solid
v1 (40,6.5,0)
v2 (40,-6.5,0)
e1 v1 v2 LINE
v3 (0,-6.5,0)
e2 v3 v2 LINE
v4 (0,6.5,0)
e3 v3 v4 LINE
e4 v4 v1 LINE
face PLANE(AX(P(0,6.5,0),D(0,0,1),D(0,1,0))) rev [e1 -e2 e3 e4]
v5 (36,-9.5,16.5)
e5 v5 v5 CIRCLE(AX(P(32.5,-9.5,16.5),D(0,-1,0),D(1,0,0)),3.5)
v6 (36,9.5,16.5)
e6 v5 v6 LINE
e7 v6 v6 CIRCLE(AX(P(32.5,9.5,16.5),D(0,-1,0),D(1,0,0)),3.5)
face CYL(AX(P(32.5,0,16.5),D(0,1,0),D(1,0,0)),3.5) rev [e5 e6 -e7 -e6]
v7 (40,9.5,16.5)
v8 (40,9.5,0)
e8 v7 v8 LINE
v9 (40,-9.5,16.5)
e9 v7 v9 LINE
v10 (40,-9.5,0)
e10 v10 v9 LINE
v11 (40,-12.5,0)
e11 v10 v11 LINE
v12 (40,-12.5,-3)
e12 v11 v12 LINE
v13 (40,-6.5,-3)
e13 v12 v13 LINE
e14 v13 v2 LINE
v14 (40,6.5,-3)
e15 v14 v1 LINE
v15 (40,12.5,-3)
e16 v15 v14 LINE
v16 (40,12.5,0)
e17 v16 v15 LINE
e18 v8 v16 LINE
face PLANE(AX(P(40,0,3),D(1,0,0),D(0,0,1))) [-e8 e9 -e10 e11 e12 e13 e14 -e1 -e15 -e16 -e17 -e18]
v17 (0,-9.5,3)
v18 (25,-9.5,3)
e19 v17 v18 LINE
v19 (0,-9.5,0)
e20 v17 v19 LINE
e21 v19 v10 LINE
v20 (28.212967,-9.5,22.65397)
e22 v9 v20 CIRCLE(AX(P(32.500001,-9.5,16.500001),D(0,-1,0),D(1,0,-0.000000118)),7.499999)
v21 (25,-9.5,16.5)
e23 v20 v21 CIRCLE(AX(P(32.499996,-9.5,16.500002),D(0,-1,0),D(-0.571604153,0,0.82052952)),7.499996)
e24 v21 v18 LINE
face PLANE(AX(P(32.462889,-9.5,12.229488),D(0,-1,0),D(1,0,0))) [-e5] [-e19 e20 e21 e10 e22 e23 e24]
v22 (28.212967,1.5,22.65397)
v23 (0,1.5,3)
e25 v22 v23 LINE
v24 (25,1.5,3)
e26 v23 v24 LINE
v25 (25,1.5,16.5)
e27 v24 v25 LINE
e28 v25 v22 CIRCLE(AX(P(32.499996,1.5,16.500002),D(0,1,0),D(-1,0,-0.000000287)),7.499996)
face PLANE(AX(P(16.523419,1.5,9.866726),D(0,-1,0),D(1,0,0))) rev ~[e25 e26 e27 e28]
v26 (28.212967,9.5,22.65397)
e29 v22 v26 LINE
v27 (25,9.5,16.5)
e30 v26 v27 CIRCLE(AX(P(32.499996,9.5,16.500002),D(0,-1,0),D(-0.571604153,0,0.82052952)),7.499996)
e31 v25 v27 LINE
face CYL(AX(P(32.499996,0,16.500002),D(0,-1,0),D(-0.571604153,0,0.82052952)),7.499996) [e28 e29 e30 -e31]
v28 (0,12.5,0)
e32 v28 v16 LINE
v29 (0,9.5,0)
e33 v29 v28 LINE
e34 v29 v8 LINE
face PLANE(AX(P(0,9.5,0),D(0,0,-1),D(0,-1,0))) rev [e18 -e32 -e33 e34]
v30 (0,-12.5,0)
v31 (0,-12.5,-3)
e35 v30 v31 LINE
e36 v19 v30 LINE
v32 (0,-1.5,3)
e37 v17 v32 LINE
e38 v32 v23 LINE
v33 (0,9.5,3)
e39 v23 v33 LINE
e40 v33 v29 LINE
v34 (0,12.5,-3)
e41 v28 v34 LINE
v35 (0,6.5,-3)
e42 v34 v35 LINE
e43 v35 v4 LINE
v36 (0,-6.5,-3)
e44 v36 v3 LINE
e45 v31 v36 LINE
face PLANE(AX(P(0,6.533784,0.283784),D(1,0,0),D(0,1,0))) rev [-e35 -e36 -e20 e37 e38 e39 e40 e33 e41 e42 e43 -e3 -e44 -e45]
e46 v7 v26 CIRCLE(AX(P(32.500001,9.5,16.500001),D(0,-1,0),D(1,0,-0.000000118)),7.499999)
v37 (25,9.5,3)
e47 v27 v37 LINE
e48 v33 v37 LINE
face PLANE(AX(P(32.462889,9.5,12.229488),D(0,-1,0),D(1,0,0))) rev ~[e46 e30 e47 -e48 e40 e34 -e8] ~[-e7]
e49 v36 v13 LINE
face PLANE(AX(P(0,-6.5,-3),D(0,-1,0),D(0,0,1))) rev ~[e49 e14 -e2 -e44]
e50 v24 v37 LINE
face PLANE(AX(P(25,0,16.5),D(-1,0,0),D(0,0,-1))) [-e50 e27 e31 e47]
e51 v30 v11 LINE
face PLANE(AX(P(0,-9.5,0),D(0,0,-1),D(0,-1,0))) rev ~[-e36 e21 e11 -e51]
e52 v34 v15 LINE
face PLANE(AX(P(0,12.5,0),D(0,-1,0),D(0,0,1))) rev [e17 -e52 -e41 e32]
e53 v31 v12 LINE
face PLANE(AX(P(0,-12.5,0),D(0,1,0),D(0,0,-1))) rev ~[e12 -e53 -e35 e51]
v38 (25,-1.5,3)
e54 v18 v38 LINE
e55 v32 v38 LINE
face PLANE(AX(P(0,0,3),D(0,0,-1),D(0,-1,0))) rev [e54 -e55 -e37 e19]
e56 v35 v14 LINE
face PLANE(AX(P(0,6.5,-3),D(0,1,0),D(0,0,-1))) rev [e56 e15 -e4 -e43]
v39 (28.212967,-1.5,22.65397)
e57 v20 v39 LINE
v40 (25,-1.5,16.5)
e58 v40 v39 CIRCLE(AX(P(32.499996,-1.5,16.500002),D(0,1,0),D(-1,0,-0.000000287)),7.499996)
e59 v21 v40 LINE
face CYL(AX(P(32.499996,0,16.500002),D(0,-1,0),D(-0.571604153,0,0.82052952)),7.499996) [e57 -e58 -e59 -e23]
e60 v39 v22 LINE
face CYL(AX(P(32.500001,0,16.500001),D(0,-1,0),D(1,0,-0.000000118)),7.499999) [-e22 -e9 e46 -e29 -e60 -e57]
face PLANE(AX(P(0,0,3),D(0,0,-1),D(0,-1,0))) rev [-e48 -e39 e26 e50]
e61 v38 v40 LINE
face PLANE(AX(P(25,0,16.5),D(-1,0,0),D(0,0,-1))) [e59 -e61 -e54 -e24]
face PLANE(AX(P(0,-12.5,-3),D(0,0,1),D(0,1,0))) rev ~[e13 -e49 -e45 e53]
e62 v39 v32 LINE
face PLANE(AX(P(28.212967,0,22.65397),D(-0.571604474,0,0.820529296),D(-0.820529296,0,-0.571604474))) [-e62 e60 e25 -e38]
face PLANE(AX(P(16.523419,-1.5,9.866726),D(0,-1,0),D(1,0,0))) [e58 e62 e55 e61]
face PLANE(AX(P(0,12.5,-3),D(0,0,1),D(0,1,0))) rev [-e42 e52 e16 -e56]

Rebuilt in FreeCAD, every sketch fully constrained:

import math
import FreeCAD as App
import Part
import Sketcher
from FreeCAD import Vector
Q = App.Units.Quantity


def add_polygon(sketch, points):
    """Adds a closed chain of lines whose ends are joined by coincident constraints."""
    first, n = sketch.GeometryCount, len(points)
    for a, b in zip(points, points[1:] + points[:1]):
        sketch.addGeometry(Part.LineSegment(App.Vector(*a, 0), App.Vector(*b, 0)), False)
    for i in range(n):
        sketch.addConstraint(Sketcher.Constraint("Coincident", first + i, 2, first + (i + 1) % n, 1))

doc = App.newDocument("Part")
params = doc.addObject("Spreadsheet::Sheet", "Params")
for row, (alias, value) in enumerate([
    ("sketch1_width", "3 mm"),
    ("sketch1_width2", "6 mm"),
    ("sketch1_width3", "6.5 mm"),
    ("pad1_length", "40 mm"),
    ("sketch2_diameter", "7 mm"),
    ("sketch2_radius", "7.499999 mm"),
    ("sketch2_height", "13.5 mm"),
    ("pad2_length", "19 mm"),
    ("sketch3_width", "25 mm"),
    ("sketch3_height", "13.5 mm"),
    ("pad3_length", "3 mm"),
], start=1):
    params.set(f"A{row}", alias)
    params.set(f"B{row}", "=" + value)
    params.setAlias(f"B{row}", alias)

body = doc.addObject("PartDesign::Body", "Body")

sketch1 = body.newObject("Sketcher::SketchObject", "Sketch")
sketch1.AttachmentSupport = (doc.getObject("YZ_Plane"), [""])
sketch1.MapMode = "FlatFace"
add_polygon(sketch1, [(-6.5, 0), (0, 0), (0, 3), (-9.5, 3), (-9.5, 0), (-12.5, 0), (-12.5, -3), (-6.5, -3)])
sketch1.addConstraint([
    Sketcher.Constraint("Horizontal", 0),
    Sketcher.Constraint("Vertical", 1),
    Sketcher.Constraint("Horizontal", 2),
    Sketcher.Constraint("Vertical", 3),
    Sketcher.Constraint("Horizontal", 4),
    Sketcher.Constraint("Vertical", 5),
    Sketcher.Constraint("Horizontal", 6),
    Sketcher.Constraint("Vertical", 7),
    Sketcher.Constraint("Coincident", 0, 2, -1, 1),
    Sketcher.Constraint("PointOnObject", 3, 2, -1),
    Sketcher.Constraint("Equal", 4, 1),
    Sketcher.Constraint("Equal", 3, 5),
    Sketcher.Constraint("DistanceX", 4, 2, 4, 1, Q("3 mm")),
    Sketcher.Constraint("DistanceX", 6, 1, 6, 2, Q("6 mm")),
    Sketcher.Constraint("DistanceX", 0, 1, 0, 2, Q("6.5 mm")),
])
sketch1.setExpression("Constraints[20]", "Params.sketch1_width")
sketch1.setExpression("Constraints[21]", "Params.sketch1_width2")
sketch1.setExpression("Constraints[22]", "Params.sketch1_width3")
pad1 = body.newObject("PartDesign::Pad", "Pad")
pad1.Profile = sketch1
pad1.setExpression("Length", "Params.pad1_length")
body2 = doc.addObject("PartDesign::Body", "Body001")
doc.recompute()

body2.BaseFeature = body
doc.recompute()

mirroring = doc.addObject("Part::Mirroring", "Mirroring")
mirroring.Source = body
mirroring.Base = Vector(0, 0, 0)
mirroring.Normal = Vector(0, -1, 0)
body3 = doc.addObject("PartDesign::Body", "Body002")
body3.BaseFeature = mirroring
boolean = body2.newObject("PartDesign::Boolean", "Boolean")
boolean.Type = "Fuse"
boolean.addObjects([body3])
doc.recompute()

sketch2 = body2.newObject("Sketcher::SketchObject", "Sketch001")
sketch2.AttachmentSupport = (doc.getObject("XZ_Plane001"), [""])
sketch2.MapMode = "FlatFace"
sketch2.addGeometry([
    Part.LineSegment(Vector(25, 3, 0), Vector(40, 3, 0)),
    Part.LineSegment(Vector(40, 3, 0), Vector(40, 16.5, 0)),
    Part.ArcOfCircle(Part.Circle(Vector(32.5, 16.5, 0), Vector(0, 0, 1), 7.5), math.radians(0), math.radians(125)),
    Part.ArcOfCircle(Part.Circle(Vector(32.5, 16.5, 0), Vector(0, 0, 1), 7.5), math.radians(125), math.radians(180)),
    Part.LineSegment(Vector(25, 16.5, 0), Vector(25, 3, 0)),
    Part.Circle(Vector(32.5, 16.5, 0), Vector(0, 0, 1), 3.5),
], False)
sketch2.addConstraint([
    Sketcher.Constraint("Coincident", 0, 2, 1, 1),
    Sketcher.Constraint("Tangent", 1, 2, 2, 1),
    Sketcher.Constraint("Tangent", 2, 2, 3, 1),
    Sketcher.Constraint("Tangent", 3, 2, 4, 1),
    Sketcher.Constraint("Coincident", 4, 2, 0, 1),
    Sketcher.Constraint("Horizontal", 0),
    Sketcher.Constraint("Vertical", 1),
    Sketcher.Constraint("Vertical", 4),
    Sketcher.Constraint("Coincident", 5, 3, 2, 3),
    Sketcher.Constraint("Horizontal", 1, 2, 3, 2),
    Sketcher.Constraint("Diameter", 5, Q("7 mm")),
    Sketcher.Constraint("Radius", 2, Q("7.499999 mm")),
    Sketcher.Constraint("DistanceY", 1, 1, 1, 2, Q("13.5 mm")),
    Sketcher.Constraint("DistanceX", -1, 1, 0, 2, Q("40 mm")),
    Sketcher.Constraint("DistanceY", -1, 1, 0, 2, Q("3 mm")),
    Sketcher.Constraint("DistanceY", -1, 1, 2, 2, Q("22.65397 mm")),
])
sketch2.setExpression("Constraints[10]", "Params.sketch2_diameter")
sketch2.setExpression("Constraints[11]", "Params.sketch2_radius")
sketch2.setExpression("Constraints[12]", "Params.sketch2_height")
pad2 = body2.newObject("PartDesign::Pad", "Pad001")
pad2.Profile = sketch2
pad2.setExpression("Length", "Params.pad2_length")
pad2.Midplane = True

sketch3 = body2.newObject("Sketcher::SketchObject", "Sketch002")
sketch3.AttachmentSupport = (doc.getObject("XZ_Plane001"), [""])
sketch3.MapMode = "FlatFace"
sketch3.addGeometry([
    Part.LineSegment(Vector(0, 3, 0), Vector(25, 3, 0)),
    Part.LineSegment(Vector(25, 3, 0), Vector(25, 16, 0)),
    Part.ArcOfCircle(Part.Circle(Vector(32, 17, 0), Vector(0, 0, 1), 7), math.radians(125), math.radians(180)),
    Part.LineSegment(Vector(28, 23, 0), Vector(0, 3, 0)),
], False)
sketch3.addConstraint([
    Sketcher.Constraint("Coincident", 0, 2, 1, 1),
    Sketcher.Constraint("Tangent", 1, 2, 2, 2),
    Sketcher.Constraint("Tangent", 2, 1, 3, 1),
    Sketcher.Constraint("Coincident", 3, 2, 0, 1),
    Sketcher.Constraint("Horizontal", 0),
    Sketcher.Constraint("Vertical", 1),
    Sketcher.Constraint("PointOnObject", 3, 2, -2),
    Sketcher.Constraint("DistanceX", 0, 1, 0, 2, Q("25 mm")),
    Sketcher.Constraint("DistanceY", 1, 1, 1, 2, Q("13.5 mm")),
    Sketcher.Constraint("DistanceY", -1, 1, 0, 2, Q("3 mm")),
    Sketcher.Constraint("Radius", 2, Q("7.499996 mm")),
])
sketch3.setExpression("Constraints[7]", "Params.sketch3_width")
sketch3.setExpression("Constraints[8]", "Params.sketch3_height")
pad3 = body2.newObject("PartDesign::Pad", "Pad002")
pad3.Profile = sketch3
pad3.setExpression("Length", "Params.pad3_length")
pad3.Midplane = True
mirroring.Visibility = False

doc.recompute()
